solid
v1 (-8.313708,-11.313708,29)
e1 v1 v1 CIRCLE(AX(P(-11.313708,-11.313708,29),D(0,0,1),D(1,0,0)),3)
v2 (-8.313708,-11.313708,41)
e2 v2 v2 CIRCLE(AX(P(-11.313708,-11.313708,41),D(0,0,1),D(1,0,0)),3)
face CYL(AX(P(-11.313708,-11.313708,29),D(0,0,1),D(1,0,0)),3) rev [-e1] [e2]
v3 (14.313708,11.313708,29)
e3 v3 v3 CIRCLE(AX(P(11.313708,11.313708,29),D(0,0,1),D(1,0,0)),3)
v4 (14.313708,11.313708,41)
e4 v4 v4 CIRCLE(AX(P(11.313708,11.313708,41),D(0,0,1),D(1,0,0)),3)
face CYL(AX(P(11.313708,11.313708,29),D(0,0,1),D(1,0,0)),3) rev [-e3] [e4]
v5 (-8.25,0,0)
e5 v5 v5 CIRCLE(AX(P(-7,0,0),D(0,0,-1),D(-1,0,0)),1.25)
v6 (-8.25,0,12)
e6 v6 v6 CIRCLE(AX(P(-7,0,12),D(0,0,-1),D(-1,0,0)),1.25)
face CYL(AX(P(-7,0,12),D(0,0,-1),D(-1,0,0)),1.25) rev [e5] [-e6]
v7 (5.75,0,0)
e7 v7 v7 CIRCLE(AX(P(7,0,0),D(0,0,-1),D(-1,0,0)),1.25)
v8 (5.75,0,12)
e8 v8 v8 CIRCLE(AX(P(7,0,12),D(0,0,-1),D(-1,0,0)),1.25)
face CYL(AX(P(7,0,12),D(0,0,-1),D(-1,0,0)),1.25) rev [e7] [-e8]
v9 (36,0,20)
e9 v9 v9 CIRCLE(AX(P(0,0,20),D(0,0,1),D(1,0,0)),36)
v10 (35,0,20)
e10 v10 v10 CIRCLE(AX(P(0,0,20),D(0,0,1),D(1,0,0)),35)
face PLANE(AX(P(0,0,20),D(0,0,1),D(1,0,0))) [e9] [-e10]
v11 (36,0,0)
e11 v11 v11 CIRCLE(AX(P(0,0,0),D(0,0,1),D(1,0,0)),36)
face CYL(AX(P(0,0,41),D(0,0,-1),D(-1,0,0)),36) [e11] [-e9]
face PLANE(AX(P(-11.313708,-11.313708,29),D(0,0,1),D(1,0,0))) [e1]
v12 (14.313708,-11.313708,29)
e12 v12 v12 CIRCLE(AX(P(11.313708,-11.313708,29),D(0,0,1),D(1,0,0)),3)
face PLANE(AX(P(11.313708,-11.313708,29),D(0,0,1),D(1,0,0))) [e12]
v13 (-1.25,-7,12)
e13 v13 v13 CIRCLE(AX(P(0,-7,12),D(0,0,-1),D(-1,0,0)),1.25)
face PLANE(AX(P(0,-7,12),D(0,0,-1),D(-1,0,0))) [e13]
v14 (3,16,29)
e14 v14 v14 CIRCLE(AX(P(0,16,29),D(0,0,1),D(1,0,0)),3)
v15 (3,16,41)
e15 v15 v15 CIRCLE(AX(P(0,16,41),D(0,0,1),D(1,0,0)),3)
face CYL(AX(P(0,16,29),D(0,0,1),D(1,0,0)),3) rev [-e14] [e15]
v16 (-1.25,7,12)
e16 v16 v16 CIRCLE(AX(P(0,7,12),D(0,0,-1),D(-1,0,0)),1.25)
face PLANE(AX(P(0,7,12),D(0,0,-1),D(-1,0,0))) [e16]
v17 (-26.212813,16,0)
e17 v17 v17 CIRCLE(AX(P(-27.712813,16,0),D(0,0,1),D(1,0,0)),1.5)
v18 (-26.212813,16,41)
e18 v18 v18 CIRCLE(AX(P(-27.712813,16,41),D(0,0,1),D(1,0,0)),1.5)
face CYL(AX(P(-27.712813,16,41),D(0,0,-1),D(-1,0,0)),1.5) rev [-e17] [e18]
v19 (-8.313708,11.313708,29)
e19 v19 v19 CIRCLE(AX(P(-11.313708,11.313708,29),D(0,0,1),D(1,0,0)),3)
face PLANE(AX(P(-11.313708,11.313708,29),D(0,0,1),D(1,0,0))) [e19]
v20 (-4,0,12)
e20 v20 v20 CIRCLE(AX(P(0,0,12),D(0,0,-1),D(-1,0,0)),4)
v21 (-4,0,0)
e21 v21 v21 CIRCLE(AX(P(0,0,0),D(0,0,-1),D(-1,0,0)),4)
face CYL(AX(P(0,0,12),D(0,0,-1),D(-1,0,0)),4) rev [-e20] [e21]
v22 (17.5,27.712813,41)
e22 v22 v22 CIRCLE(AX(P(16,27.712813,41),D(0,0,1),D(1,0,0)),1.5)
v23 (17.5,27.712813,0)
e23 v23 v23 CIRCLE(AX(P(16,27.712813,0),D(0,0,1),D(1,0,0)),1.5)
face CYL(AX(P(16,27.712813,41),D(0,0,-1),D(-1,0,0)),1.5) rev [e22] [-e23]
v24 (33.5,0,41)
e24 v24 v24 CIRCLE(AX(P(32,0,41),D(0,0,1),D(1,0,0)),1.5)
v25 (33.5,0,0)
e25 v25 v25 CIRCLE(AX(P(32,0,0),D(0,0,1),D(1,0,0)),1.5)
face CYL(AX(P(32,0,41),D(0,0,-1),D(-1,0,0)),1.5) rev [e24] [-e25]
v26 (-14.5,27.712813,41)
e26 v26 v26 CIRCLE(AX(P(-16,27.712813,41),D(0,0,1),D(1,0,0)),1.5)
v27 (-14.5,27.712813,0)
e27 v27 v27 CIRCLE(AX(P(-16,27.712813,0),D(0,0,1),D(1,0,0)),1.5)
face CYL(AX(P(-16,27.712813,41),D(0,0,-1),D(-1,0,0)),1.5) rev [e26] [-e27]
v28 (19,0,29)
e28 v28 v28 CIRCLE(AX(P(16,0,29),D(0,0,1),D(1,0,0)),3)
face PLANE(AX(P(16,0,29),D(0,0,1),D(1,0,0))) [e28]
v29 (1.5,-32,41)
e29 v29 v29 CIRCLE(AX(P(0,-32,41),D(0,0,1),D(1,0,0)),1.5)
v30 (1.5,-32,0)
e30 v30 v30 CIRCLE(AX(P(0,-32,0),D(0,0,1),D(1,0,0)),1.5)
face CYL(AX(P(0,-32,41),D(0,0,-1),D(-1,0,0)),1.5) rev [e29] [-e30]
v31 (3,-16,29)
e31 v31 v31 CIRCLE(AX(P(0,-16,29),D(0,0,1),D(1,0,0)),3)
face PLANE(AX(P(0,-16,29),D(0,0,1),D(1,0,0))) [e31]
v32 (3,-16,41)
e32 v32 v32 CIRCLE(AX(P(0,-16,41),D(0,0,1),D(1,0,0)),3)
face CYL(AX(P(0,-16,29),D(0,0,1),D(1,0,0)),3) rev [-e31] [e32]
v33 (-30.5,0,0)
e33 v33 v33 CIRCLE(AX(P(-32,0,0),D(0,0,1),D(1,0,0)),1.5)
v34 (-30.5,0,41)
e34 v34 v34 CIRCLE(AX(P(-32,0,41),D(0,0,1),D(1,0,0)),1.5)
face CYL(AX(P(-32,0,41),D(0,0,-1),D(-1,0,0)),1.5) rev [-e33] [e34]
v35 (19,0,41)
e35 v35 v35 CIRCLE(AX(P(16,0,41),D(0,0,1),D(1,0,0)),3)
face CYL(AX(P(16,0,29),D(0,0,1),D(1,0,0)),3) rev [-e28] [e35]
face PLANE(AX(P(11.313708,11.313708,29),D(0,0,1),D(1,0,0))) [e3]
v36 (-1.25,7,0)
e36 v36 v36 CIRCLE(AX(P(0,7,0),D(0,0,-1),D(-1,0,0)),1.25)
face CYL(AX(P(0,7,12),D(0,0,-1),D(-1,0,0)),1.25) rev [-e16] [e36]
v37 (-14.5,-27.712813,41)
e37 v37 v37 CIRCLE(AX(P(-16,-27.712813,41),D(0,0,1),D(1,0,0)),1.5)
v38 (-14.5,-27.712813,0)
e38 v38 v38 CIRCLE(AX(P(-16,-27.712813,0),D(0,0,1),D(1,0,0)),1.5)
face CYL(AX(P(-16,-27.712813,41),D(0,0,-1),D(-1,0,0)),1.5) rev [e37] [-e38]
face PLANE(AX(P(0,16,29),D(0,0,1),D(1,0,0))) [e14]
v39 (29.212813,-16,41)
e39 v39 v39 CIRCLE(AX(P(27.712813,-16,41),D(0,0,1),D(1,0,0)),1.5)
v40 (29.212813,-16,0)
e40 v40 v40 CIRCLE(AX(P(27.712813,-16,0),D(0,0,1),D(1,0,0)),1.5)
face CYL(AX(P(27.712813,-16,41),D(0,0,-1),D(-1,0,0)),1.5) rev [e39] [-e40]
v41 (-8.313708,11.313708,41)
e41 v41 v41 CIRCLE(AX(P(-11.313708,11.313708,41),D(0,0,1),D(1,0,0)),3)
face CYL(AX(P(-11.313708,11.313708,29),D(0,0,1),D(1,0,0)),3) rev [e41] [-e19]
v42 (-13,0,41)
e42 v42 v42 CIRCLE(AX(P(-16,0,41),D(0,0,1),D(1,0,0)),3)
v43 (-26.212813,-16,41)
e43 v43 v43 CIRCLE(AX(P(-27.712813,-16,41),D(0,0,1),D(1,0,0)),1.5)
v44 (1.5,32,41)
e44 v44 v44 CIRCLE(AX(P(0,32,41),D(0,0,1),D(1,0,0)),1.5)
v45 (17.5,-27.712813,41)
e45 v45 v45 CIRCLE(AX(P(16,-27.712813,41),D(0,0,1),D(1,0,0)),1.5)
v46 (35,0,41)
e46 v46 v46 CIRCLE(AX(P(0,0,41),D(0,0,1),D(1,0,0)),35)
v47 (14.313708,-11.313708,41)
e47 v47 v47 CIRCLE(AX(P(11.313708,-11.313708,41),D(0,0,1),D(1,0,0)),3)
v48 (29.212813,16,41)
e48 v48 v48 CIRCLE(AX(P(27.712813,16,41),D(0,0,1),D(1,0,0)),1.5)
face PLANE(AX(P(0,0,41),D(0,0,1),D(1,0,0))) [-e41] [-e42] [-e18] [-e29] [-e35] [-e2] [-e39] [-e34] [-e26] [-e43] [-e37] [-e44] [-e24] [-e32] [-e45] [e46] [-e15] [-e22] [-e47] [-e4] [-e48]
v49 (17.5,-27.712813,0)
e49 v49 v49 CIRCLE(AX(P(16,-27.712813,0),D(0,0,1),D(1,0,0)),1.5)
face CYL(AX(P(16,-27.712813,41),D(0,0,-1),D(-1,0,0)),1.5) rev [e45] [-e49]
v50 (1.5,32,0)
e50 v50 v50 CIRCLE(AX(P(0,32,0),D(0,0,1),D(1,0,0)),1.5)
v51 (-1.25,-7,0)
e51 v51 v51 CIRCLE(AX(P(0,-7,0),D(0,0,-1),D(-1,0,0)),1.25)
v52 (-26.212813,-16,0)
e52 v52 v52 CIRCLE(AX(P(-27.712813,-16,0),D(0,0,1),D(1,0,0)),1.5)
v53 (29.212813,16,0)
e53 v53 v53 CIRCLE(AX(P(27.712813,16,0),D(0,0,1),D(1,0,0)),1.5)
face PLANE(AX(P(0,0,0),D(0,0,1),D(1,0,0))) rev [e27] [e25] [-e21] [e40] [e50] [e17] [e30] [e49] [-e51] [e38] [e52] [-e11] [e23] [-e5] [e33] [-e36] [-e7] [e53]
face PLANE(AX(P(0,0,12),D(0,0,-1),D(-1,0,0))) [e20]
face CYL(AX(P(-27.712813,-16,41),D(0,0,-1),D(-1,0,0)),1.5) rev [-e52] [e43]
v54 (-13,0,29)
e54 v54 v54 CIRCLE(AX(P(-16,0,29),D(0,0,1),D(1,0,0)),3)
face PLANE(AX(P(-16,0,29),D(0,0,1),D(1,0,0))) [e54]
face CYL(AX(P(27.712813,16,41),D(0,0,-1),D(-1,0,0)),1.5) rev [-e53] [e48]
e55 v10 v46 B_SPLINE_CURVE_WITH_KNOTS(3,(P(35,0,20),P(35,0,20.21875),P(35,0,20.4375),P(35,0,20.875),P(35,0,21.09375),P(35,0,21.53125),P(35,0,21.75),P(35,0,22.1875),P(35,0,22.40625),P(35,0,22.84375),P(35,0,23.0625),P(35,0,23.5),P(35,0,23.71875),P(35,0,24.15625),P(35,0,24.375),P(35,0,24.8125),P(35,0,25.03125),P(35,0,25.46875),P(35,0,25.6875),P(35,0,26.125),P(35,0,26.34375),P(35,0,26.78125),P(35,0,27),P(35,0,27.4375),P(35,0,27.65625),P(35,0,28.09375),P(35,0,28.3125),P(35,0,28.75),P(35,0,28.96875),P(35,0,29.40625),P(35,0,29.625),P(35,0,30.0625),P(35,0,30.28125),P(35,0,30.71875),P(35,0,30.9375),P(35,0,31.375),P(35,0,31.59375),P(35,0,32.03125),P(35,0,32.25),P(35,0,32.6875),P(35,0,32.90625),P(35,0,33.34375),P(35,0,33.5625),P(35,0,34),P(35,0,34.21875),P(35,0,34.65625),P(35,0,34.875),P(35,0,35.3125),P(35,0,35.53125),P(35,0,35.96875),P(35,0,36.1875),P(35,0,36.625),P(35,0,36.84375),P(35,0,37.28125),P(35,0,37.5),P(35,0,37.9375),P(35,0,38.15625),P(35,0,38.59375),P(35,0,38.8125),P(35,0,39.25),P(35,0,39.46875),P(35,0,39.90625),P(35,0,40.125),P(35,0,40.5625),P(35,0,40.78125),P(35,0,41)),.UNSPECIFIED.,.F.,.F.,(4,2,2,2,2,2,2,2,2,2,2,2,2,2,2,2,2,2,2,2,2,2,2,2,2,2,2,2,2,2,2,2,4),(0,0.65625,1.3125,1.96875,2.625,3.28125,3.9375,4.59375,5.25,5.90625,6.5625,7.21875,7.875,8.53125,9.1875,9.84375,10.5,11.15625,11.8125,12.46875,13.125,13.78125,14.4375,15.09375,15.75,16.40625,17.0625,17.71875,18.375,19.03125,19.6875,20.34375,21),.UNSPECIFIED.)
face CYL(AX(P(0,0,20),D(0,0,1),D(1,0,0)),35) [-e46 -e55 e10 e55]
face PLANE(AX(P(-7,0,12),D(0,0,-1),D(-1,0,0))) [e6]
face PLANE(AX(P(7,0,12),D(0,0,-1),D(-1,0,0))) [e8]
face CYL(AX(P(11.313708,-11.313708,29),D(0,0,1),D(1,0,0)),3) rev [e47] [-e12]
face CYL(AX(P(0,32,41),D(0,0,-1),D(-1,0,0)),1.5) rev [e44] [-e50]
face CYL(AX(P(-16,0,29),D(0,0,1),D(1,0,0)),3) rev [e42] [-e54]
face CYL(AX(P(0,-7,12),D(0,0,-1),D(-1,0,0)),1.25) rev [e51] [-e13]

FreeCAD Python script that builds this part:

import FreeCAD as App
import Part
import Sketcher

V = App.Vector

doc = App.newDocument("Part")
body = doc.addObject("PartDesign::Body", "Body")

# Sketch on XY plane
sketch1 = body.newObject("Sketcher::SketchObject", "Sketch")
sketch1.AttachmentSupport = (doc.getObject("XY_Plane"), [""])
sketch1.MapMode = "FlatFace"
sketch1.addGeometry([
    Part.Circle(V(0, 0, 0), V(0, 0, 1), 36),  # 0
    Part.Circle(V(-16, -27.7, 0), V(0, 0, 1), 1.5),  # 1
    Part.Circle(V(-27.7, -16, 0), V(0, 0, 1), 1.5),  # 2
    Part.Circle(V(0, -32, 0), V(0, 0, 1), 1.5),  # 3
    Part.Circle(V(16, -27.7, 0), V(0, 0, 1), 1.5),  # 4
    Part.Circle(V(27.7, -16, 0), V(0, 0, 1), 1.5),  # 5
    Part.Circle(V(-32, 0, 0), V(0, 0, 1), 1.5),  # 6
    Part.Circle(V(-27.7, 16, 0), V(0, 0, 1), 1.5),  # 7
    Part.Circle(V(-16, 27.7, 0), V(0, 0, 1), 1.5),  # 8
    Part.Circle(V(32, 0, 0), V(0, 0, 1), 1.5),  # 9
    Part.Circle(V(27.7, 16, 0), V(0, 0, 1), 1.5),  # 10
    Part.Circle(V(0, 32, 0), V(0, 0, 1), 1.5),  # 11
    Part.Circle(V(16, 27.7, 0), V(0, 0, 1), 1.5),  # 12
], False)
sketch1.addConstraint([
    Sketcher.Constraint("Coincident", 0, 3, -1, 1),
    Sketcher.Constraint("Equal", 1, 2),
    Sketcher.Constraint("Equal", 2, 3),
    Sketcher.Constraint("Equal", 3, 4),
    Sketcher.Constraint("Equal", 4, 5),
    Sketcher.Constraint("Equal", 5, 6),
    Sketcher.Constraint("Equal", 6, 7),
    Sketcher.Constraint("Equal", 7, 8),
    Sketcher.Constraint("Equal", 8, 9),
    Sketcher.Constraint("Equal", 9, 10),
    Sketcher.Constraint("Equal", 10, 11),
    Sketcher.Constraint("Equal", 11, 12),
    Sketcher.Constraint("Symmetric", 5, 3, 7, 3, -1, 1),
    Sketcher.Constraint("Symmetric", 4, 3, 8, 3, -1, 1),
    Sketcher.Constraint("Symmetric", 6, 3, 9, 3, -1, 1),
    Sketcher.Constraint("Symmetric", 2, 3, 10, 3, -1, 1),
    Sketcher.Constraint("Symmetric", 3, 3, 11, 3, -1, 1),
    Sketcher.Constraint("Symmetric", 1, 3, 12, 3, -1, 1),
    Sketcher.Constraint("Symmetric", 1, 3, 4, 3, -2),
    Sketcher.Constraint("Symmetric", 2, 3, 5, 3, -2),
    Sketcher.Constraint("PointOnObject", 3, 3, -2),
    Sketcher.Constraint("PointOnObject", 6, 3, -1),
    Sketcher.Constraint("Diameter", 0, 72.0),
    Sketcher.Constraint("Diameter", 1, 3.0),
    Sketcher.Constraint("DistanceX", 1, 3, -1, 1, 16.0),
    Sketcher.Constraint("DistanceY", 2, 3, -1, 1, 16.0),
    Sketcher.Constraint("DistanceY", 3, 3, -1, 1, 32.0),
    Sketcher.Constraint("DistanceX", 6, 3, -1, 1, 32.0),
    Sketcher.Constraint("DistanceY", 1, 3, -1, 1, 27.712813),
    Sketcher.Constraint("DistanceX", 2, 3, -1, 1, 27.712813),
])
pad1 = body.newObject("PartDesign::Pad", "Pad")
pad1.Profile = sketch1
pad1.Length = 41

# Sketch on XY plane
sketch2 = body.newObject("Sketcher::SketchObject", "Sketch001")
sketch2.AttachmentSupport = (doc.getObject("XY_Plane"), [""])
sketch2.MapMode = "FlatFace"
sketch2.AttachmentOffset = App.Placement(V(0, 0, 41), App.Rotation())
sketch2.addGeometry([
    Part.Circle(V(16, 0, 0), V(0, 0, 1), 3),  # 0
    Part.Circle(V(11.3, -11.3, 0), V(0, 0, 1), 3),  # 1
    Part.Circle(V(0, -16, 0), V(0, 0, 1), 3),  # 2
    Part.Circle(V(-11.3, -11.3, 0), V(0, 0, 1), 3),  # 3
    Part.Circle(V(-16, 0, 0), V(0, 0, 1), 3),  # 4
    Part.Circle(V(-11.3, 11.3, 0), V(0, 0, 1), 3),  # 5
    Part.Circle(V(0, 16, 0), V(0, 0, 1), 3),  # 6
    Part.Circle(V(11.3, 11.3, 0), V(0, 0, 1), 3),  # 7
], False)
sketch2.addConstraint([
    Sketcher.Constraint("Equal", 0, 1),
    Sketcher.Constraint("Equal", 1, 2),
    Sketcher.Constraint("Equal", 2, 3),
    Sketcher.Constraint("Equal", 3, 4),
    Sketcher.Constraint("Equal", 4, 5),
    Sketcher.Constraint("Equal", 5, 6),
    Sketcher.Constraint("Equal", 6, 7),
    Sketcher.Constraint("Symmetric", 0, 3, 4, 3, -1, 1),
    Sketcher.Constraint("Symmetric", 1, 3, 5, 3, -1, 1),
    Sketcher.Constraint("Symmetric", 2, 3, 6, 3, -1, 1),
    Sketcher.Constraint("Symmetric", 3, 3, 7, 3, -1, 1),
    Sketcher.Constraint("Symmetric", 1, 3, 3, 3, -2),
    Sketcher.Constraint("PointOnObject", 0, 3, -1),
    Sketcher.Constraint("PointOnObject", 2, 3, -2),
    Sketcher.Constraint("Diameter", 0, 6.0),
    Sketcher.Constraint("DistanceX", -1, 1, 0, 3, 16.0),
    Sketcher.Constraint("DistanceY", 2, 3, -1, 1, 16.0),
    Sketcher.Constraint("DistanceX", -1, 1, 1, 3, 11.313708),
    Sketcher.Constraint("DistanceY", 1, 3, -1, 1, 11.313708),
])
pocket1 = body.newObject("PartDesign::Pocket", "Pocket")
pocket1.Profile = sketch2
pocket1.Length = 12

# Sketch on XY plane
sketch3 = body.newObject("Sketcher::SketchObject", "Sketch002")
sketch3.AttachmentSupport = (doc.getObject("XY_Plane"), [""])
sketch3.MapMode = "FlatFace"
sketch3.addGeometry(Part.Circle(V(0, 0, 0), V(0, 0, 1), 4), False)
sketch3.addConstraint([
    Sketcher.Constraint("Coincident", 0, 3, -1, 1),
    Sketcher.Constraint("Diameter", 0, 8.0),
])
pocket2 = body.newObject("PartDesign::Pocket", "Pocket001")
pocket2.Profile = sketch3
pocket2.Length = 12
pocket2.Reversed = True

# Sketch on XY plane
sketch4 = body.newObject("Sketcher::SketchObject", "Sketch003")
sketch4.AttachmentSupport = (doc.getObject("XY_Plane"), [""])
sketch4.MapMode = "FlatFace"
sketch4.addGeometry([
    Part.Circle(V(-7, 0, 0), V(0, 0, 1), 1.2),
    Part.Circle(V(0, -7, 0), V(0, 0, 1), 1.2),
    Part.Circle(V(7, 0, 0), V(0, 0, 1), 1.2),
    Part.Circle(V(0, 7, 0), V(0, 0, 1), 1.2),
], False)
sketch4.addConstraint([
    Sketcher.Constraint("Equal", 0, 1),
    Sketcher.Constraint("Equal", 1, 2),
    Sketcher.Constraint("Equal", 2, 3),
    Sketcher.Constraint("Symmetric", 0, 3, 2, 3, -1, 1),
    Sketcher.Constraint("Symmetric", 1, 3, 3, 3, -1, 1),
    Sketcher.Constraint("PointOnObject", 0, 3, -1),
    Sketcher.Constraint("PointOnObject", 1, 3, -2),
    Sketcher.Constraint("Diameter", 0, 2.5),
    Sketcher.Constraint("DistanceX", 0, 3, -1, 1, 7.0),
    Sketcher.Constraint("DistanceY", 1, 3, -1, 1, 7.0),
])
pocket3 = body.newObject("PartDesign::Pocket", "Pocket002")
pocket3.Profile = sketch4
pocket3.Length = 12
pocket3.Reversed = True

# Sketch on XY plane
sketch5 = body.newObject("Sketcher::SketchObject", "Sketch004")
sketch5.AttachmentSupport = (doc.getObject("XY_Plane"), [""])
sketch5.MapMode = "FlatFace"
sketch5.AttachmentOffset = App.Placement(V(0, 0, 20), App.Rotation())
sketch5.addGeometry([
    Part.Circle(V(0, 0, 0), V(0, 0, 1), 36),
    Part.Circle(V(0, 0, 0), V(0, 0, 1), 35),
], False)
sketch5.addConstraint([
    Sketcher.Constraint("Coincident", 0, 3, -1, 1),
    Sketcher.Constraint("Coincident", 1, 3, -1, 1),
    Sketcher.Constraint("Diameter", 0, 72.0),
    Sketcher.Constraint("Diameter", 1, 70.0),
])
pocket4 = body.newObject("PartDesign::Pocket", "Pocket003")
pocket4.Profile = sketch5
pocket4.Length = 21
pocket4.Reversed = True

doc.recompute()
